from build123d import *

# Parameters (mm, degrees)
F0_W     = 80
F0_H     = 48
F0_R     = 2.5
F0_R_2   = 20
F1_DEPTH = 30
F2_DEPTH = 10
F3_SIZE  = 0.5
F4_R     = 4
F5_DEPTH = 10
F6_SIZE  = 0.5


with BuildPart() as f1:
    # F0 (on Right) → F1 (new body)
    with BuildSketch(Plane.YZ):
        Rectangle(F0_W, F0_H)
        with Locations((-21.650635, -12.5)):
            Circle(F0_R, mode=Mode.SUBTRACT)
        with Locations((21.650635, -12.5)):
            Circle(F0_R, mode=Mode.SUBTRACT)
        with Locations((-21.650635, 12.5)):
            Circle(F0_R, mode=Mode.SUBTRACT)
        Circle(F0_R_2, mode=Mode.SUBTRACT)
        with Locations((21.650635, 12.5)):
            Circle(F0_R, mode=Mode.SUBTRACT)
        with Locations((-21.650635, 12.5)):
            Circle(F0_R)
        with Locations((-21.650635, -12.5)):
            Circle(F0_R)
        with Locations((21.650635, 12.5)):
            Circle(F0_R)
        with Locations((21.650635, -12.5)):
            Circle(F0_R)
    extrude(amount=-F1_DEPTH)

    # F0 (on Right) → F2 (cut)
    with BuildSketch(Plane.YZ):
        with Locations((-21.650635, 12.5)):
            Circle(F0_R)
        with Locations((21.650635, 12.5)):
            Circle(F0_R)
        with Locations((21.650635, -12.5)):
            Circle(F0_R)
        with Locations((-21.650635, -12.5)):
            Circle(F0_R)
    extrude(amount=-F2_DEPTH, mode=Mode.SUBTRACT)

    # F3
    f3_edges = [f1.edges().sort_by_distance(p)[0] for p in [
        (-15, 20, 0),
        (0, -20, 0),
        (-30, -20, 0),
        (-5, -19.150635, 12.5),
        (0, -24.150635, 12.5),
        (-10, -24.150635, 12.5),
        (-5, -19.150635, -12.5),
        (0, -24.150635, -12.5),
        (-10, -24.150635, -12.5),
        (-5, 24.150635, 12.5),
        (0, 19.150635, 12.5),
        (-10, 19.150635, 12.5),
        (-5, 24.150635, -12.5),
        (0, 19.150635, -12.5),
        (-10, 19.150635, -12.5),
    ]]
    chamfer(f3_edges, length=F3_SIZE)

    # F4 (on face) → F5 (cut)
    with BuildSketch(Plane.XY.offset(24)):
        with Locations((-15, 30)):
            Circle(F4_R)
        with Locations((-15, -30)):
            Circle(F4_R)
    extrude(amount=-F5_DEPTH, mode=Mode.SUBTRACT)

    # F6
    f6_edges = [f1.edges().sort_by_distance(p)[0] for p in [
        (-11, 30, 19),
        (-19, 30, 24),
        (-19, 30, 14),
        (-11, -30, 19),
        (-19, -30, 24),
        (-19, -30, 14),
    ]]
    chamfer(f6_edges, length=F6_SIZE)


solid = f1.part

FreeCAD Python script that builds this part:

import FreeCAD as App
import Part
import Sketcher
from FreeCAD import Vector
Q = App.Units.Quantity


def edges_at(feature, points):
    """Names of the edges that pass closest to the given points."""
    edges = feature.Shape.Edges
    near = lambda p: min(range(len(edges)), key=lambda i: edges[i].distToShape(Part.Vertex(*p))[0])
    return sorted({f"Edge{near(p) + 1}" for p in points})

doc = App.newDocument("Part")
params = doc.addObject("Spreadsheet::Sheet", "Params")
for row, (alias, value) in enumerate([
    ("sketch1_diameter", "40 mm"),
    ("sketch1_width", "80 mm"),
    ("sketch1_height", "48 mm"),
    ("pad1_length", "30 mm"),
    ("sketch2_diameter", "5 mm"),
    ("pocket1_length", "10 mm"),
    ("chamfer_size", "0.5 mm"),
    ("sketch3_diameter", "8 mm"),
    ("pocket2_length", "10 mm"),
    ("chamfer2_size", "0.5 mm"),
], start=1):
    params.set(f"A{row}", alias)
    params.set(f"B{row}", "=" + value)
    params.setAlias(f"B{row}", alias)

body = doc.addObject("PartDesign::Body", "Body")

sketch1 = body.newObject("Sketcher::SketchObject", "Sketch")
sketch1.AttachmentSupport = (doc.getObject("YZ_Plane"), [""])
sketch1.MapMode = "FlatFace"
sketch1.addGeometry([
    Part.LineSegment(Vector(-40, 24, 0), Vector(-40, -24, 0)),
    Part.LineSegment(Vector(-40, -24, 0), Vector(40, -24, 0)),
    Part.LineSegment(Vector(40, -24, 0), Vector(40, 24, 0)),
    Part.LineSegment(Vector(40, 24, 0), Vector(-40, 24, 0)),
    Part.Circle(Vector(0, 0, 0), Vector(0, 0, 1), 20),
], False)
sketch1.addConstraint([
    Sketcher.Constraint("Coincident", 0, 2, 1, 1),
    Sketcher.Constraint("Coincident", 1, 2, 2, 1),
    Sketcher.Constraint("Coincident", 2, 2, 3, 1),
    Sketcher.Constraint("Coincident", 3, 2, 0, 1),
    Sketcher.Constraint("Vertical", 0),
    Sketcher.Constraint("Horizontal", 1),
    Sketcher.Constraint("Vertical", 2),
    Sketcher.Constraint("Horizontal", 3),
    Sketcher.Constraint("Coincident", 4, 3, -1, 1),
    Sketcher.Constraint("Symmetric", 0, 2, 2, 2, -1, 1),
    Sketcher.Constraint("Diameter", 4, Q("40 mm")),
    Sketcher.Constraint("DistanceX", 1, 1, 1, 2, Q("80 mm")),
    Sketcher.Constraint("DistanceY", 0, 2, 0, 1, Q("48 mm")),
])
sketch1.setExpression("Constraints[10]", "Params.sketch1_diameter")
sketch1.setExpression("Constraints[11]", "Params.sketch1_width")
sketch1.setExpression("Constraints[12]", "Params.sketch1_height")
pad1 = body.newObject("PartDesign::Pad", "Pad")
pad1.Profile = sketch1
pad1.setExpression("Length", "Params.pad1_length")
pad1.Reversed = True

sketch2 = body.newObject("Sketcher::SketchObject", "Sketch001")
sketch2.AttachmentSupport = (doc.getObject("YZ_Plane"), [""])
sketch2.MapMode = "FlatFace"
sketch2.addGeometry([
    Part.Circle(Vector(-21.650635, 12.5, 0), Vector(0, 0, 1), 2.5),
    Part.Circle(Vector(21.650635, 12.5, 0), Vector(0, 0, 1), 2.5),
    Part.Circle(Vector(21.650635, -12.5, 0), Vector(0, 0, 1), 2.5),
    Part.Circle(Vector(-21.650635, -12.5, 0), Vector(0, 0, 1), 2.5),
], False)
sketch2.addConstraint([
    Sketcher.Constraint("Equal", 0, 1),
    Sketcher.Constraint("Equal", 1, 2),
    Sketcher.Constraint("Equal", 2, 3),
    Sketcher.Constraint("Symmetric", 0, 3, 2, 3, -1, 1),
    Sketcher.Constraint("Symmetric", 1, 3, 3, 3, -1, 1),
    Sketcher.Constraint("Symmetric", 0, 3, 1, 3, -2),
    Sketcher.Constraint("Diameter", 0, Q("5 mm")),
    Sketcher.Constraint("DistanceY", 2, 3, 1, 3, Q("25 mm")),
    Sketcher.Constraint("DistanceX", 0, 3, 1, 3, Q("43.30127 mm")),
])
sketch2.setExpression("Constraints[6]", "Params.sketch2_diameter")
pocket1 = body.newObject("PartDesign::Pocket", "Pocket")
pocket1.Profile = sketch2
pocket1.setExpression("Length", "Params.pocket1_length")
doc.recompute()

chamfer = body.newObject("PartDesign::Chamfer", "Chamfer")
chamfer.Base = (pocket1, edges_at(pocket1, [
    (-15, 20, 0),
    (0, -20, 0),
    (-30, -20, 0),
    (-5, -19.151, 12.5),
    (0, -24.151, 12.5),
    (-10, -24.151, 12.5),
    (-5, -19.151, -12.5),
    (0, -24.151, -12.5),
    (-10, -24.151, -12.5),
    (-5, 24.151, 12.5),
    (0, 19.151, 12.5),
    (-10, 19.151, 12.5),
    (-5, 24.151, -12.5),
    (0, 19.151, -12.5),
    (-10, 19.151, -12.5),
]))
chamfer.setExpression("Size", "Params.chamfer_size")

sketch3 = body.newObject("Sketcher::SketchObject", "Sketch002")
sketch3.AttachmentSupport = (doc.getObject("XY_Plane"), [""])
sketch3.MapMode = "FlatFace"
sketch3.AttachmentOffset = App.Placement(Vector(0, 0, 24), App.Rotation())
sketch3.addGeometry([
    Part.Circle(Vector(-15, 30, 0), Vector(0, 0, 1), 4),
    Part.Circle(Vector(-15, -30, 0), Vector(0, 0, 1), 4),
], False)
sketch3.addConstraint([
    Sketcher.Constraint("Equal", 0, 1),
    Sketcher.Constraint("Symmetric", 0, 3, 1, 3, -1),
    Sketcher.Constraint("Diameter", 0, Q("8 mm")),
    Sketcher.Constraint("DistanceX", 0, 3, -1, 1, Q("15 mm")),
    Sketcher.Constraint("DistanceY", -1, 1, 0, 3, Q("30 mm")),
])
sketch3.setExpression("Constraints[2]", "Params.sketch3_diameter")
pocket2 = body.newObject("PartDesign::Pocket", "Pocket001")
pocket2.Profile = sketch3
pocket2.setExpression("Length", "Params.pocket2_length")
doc.recompute()

chamfer2 = body.newObject("PartDesign::Chamfer", "Chamfer001")
chamfer2.Base = (pocket2, edges_at(pocket2, [
    (-11, 30, 19),
    (-19, 30, 24),
    (-19, 30, 14),
    (-11, -30, 19),
    (-19, -30, 24),
    (-19, -30, 14),
]))
chamfer2.setExpression("Size", "Params.chamfer2_size")

doc.recompute()
